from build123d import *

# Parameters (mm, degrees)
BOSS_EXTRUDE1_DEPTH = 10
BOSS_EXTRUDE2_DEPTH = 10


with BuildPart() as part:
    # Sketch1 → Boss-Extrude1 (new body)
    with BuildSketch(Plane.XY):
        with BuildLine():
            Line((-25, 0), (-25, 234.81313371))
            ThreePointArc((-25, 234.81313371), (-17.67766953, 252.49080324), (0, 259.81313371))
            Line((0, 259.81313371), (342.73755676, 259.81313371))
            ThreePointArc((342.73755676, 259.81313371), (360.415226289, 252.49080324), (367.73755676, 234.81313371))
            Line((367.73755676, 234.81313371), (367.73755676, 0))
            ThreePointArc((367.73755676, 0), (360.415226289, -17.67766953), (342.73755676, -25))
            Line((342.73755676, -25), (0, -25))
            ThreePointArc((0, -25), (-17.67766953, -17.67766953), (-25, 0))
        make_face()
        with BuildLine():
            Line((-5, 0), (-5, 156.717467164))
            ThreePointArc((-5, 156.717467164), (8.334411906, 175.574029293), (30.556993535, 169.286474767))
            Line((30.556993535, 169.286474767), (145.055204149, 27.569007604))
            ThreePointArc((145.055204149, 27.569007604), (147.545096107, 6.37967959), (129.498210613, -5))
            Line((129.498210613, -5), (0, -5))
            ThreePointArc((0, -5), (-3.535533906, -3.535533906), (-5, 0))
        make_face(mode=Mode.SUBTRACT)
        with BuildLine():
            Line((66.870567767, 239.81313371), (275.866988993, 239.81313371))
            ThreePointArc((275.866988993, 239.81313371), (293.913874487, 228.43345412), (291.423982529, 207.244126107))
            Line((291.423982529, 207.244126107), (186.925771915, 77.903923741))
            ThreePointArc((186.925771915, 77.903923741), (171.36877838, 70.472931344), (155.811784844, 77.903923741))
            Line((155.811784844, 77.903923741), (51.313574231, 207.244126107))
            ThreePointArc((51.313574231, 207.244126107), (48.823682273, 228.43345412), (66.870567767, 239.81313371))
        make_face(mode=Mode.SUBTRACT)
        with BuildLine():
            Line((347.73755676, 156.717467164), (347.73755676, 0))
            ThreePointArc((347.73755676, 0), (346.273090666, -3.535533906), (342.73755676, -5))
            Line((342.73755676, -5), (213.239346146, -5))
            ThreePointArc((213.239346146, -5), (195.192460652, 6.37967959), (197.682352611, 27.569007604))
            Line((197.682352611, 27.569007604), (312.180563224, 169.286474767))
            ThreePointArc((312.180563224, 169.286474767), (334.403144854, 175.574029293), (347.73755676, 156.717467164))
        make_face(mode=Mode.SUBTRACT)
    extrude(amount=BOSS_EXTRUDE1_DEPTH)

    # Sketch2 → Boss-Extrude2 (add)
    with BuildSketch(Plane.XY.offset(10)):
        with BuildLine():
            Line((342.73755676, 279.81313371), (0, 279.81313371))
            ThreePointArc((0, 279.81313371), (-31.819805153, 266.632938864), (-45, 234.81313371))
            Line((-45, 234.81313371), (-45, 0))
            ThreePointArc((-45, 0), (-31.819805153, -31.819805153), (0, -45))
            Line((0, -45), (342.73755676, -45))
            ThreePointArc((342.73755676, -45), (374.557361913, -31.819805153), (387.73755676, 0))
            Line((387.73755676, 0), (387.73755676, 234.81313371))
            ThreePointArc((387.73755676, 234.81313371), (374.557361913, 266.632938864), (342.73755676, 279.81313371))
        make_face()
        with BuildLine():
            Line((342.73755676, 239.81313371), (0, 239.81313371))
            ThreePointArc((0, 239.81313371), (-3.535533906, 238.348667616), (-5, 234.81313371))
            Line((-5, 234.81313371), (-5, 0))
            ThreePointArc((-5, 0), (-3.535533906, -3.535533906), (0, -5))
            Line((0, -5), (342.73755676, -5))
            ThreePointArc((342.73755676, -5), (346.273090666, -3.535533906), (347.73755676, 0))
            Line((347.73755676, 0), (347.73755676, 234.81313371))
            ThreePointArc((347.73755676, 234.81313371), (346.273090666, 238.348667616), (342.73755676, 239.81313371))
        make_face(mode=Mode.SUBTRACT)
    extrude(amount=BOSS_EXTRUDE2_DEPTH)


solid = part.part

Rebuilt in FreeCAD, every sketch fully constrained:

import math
import FreeCAD as App
import Part
import Sketcher
from FreeCAD import Vector

doc = App.newDocument("Part")
body = doc.addObject("PartDesign::Body", "Body")

# Sketch on XY plane
sketch1 = doc.addObject("Sketcher::SketchObject", "Sketch")
body.addObject(sketch1)
sketch1.AttachmentSupport = (doc.XY_Plane, [""])
sketch1.MapMode = "FlatFace"
sketch1.addGeometry(Part.LineSegment(Vector(-25, 234.813134, 0), Vector(-25, 0, 0)), False)
sketch1.addGeometry(Part.ArcOfCircle(Part.Circle(Vector(0, 0, 0), Vector(0, 0, 1), 25), math.radians(180), math.radians(270)), False)
sketch1.addGeometry(Part.LineSegment(Vector(0, -25, 0), Vector(342.737557, -25, 0)), False)
sketch1.addGeometry(Part.ArcOfCircle(Part.Circle(Vector(342.737557, 0, 0), Vector(0, 0, 1), 25), math.radians(-90), math.radians(0)), False)
sketch1.addGeometry(Part.LineSegment(Vector(367.737557, 0, 0), Vector(367.737557, 234.813134, 0)), False)
sketch1.addGeometry(Part.ArcOfCircle(Part.Circle(Vector(342.737557, 234.813134, 0), Vector(0, 0, 1), 25), math.radians(0), math.radians(90)), False)
sketch1.addGeometry(Part.LineSegment(Vector(342.737557, 259.813134, 0), Vector(0, 259.813134, 0)), False)
sketch1.addGeometry(Part.ArcOfCircle(Part.Circle(Vector(0, 234.813134, 0), Vector(0, 0, 1), 25), math.radians(90), math.radians(180)), False)
sketch1.addGeometry(Part.LineSegment(Vector(347.737557, 156.717467, 0), Vector(347.737557, 0, 0)), False)
sketch1.addGeometry(Part.ArcOfCircle(Part.Circle(Vector(342.737557, 0, 0), Vector(0, 0, 1), 5), math.radians(-90), math.radians(0)), False)
sketch1.addGeometry(Part.LineSegment(Vector(342.737557, -5, 0), Vector(213.239346, -5, 0)), False)
sketch1.addGeometry(Part.ArcOfCircle(Part.Circle(Vector(213.239346, 15, 0), Vector(0, 0, 1), 20), math.radians(141.064113), math.radians(270)), False)
sketch1.addGeometry(Part.LineSegment(Vector(197.682353, 27.569008, 0), Vector(312.180563, 169.286475, 0)), False)
sketch1.addGeometry(Part.ArcOfCircle(Part.Circle(Vector(327.737557, 156.717467, 0), Vector(0, 0, 1), 20), math.radians(0), math.radians(141.064113)), False)
sketch1.addGeometry(Part.LineSegment(Vector(-5, 0, 0), Vector(-5, 156.717467, 0)), False)
sketch1.addGeometry(Part.ArcOfCircle(Part.Circle(Vector(15, 156.717467, 0), Vector(0, 0, 1), 20), math.radians(38.935887), math.radians(180)), False)
sketch1.addGeometry(Part.LineSegment(Vector(30.556994, 169.286475, 0), Vector(145.055204, 27.569008, 0)), False)
sketch1.addGeometry(Part.ArcOfCircle(Part.Circle(Vector(129.498211, 15, 0), Vector(0, 0, 1), 20), math.radians(-90), math.radians(38.935887)), False)
sketch1.addGeometry(Part.LineSegment(Vector(129.498211, -5, 0), Vector(0, -5, 0)), False)
sketch1.addGeometry(Part.ArcOfCircle(Part.Circle(Vector(0, 0, 0), Vector(0, 0, 1), 5), math.radians(180), math.radians(270)), False)
sketch1.addGeometry(Part.LineSegment(Vector(66.870568, 239.813134, 0), Vector(275.866989, 239.813134, 0)), False)
sketch1.addGeometry(Part.ArcOfCircle(Part.Circle(Vector(275.866989, 219.813134, 0), Vector(0, 0, 1), 20), math.radians(-38.935887), math.radians(90)), False)
sketch1.addGeometry(Part.LineSegment(Vector(291.423983, 207.244126, 0), Vector(186.925772, 77.903924, 0)), False)
sketch1.addGeometry(Part.ArcOfCircle(Part.Circle(Vector(171.368778, 90.472931, 0), Vector(0, 0, 1), 20), math.radians(-141.064113), math.radians(-38.935887)), False)
sketch1.addGeometry(Part.LineSegment(Vector(155.811785, 77.903924, 0), Vector(51.313574, 207.244126, 0)), False)
sketch1.addGeometry(Part.ArcOfCircle(Part.Circle(Vector(66.870568, 219.813134, 0), Vector(0, 0, 1), 20), math.radians(90), math.radians(218.935887)), False)
sketch1.addConstraint(Sketcher.Constraint("Tangent", 0, 2, 1, 1))
sketch1.addConstraint(Sketcher.Constraint("Tangent", 1, 2, 2, 1))
sketch1.addConstraint(Sketcher.Constraint("Tangent", 2, 2, 3, 1))
sketch1.addConstraint(Sketcher.Constraint("Tangent", 3, 2, 4, 1))
sketch1.addConstraint(Sketcher.Constraint("Tangent", 4, 2, 5, 1))
sketch1.addConstraint(Sketcher.Constraint("Tangent", 5, 2, 6, 1))
sketch1.addConstraint(Sketcher.Constraint("Tangent", 6, 2, 7, 1))
sketch1.addConstraint(Sketcher.Constraint("Tangent", 7, 2, 0, 1))
sketch1.addConstraint(Sketcher.Constraint("Tangent", 8, 2, 9, 2))
sketch1.addConstraint(Sketcher.Constraint("Tangent", 9, 1, 10, 1))
sketch1.addConstraint(Sketcher.Constraint("Tangent", 10, 2, 11, 2))
sketch1.addConstraint(Sketcher.Constraint("Tangent", 11, 1, 12, 1))
sketch1.addConstraint(Sketcher.Constraint("Tangent", 12, 2, 13, 2))
sketch1.addConstraint(Sketcher.Constraint("Tangent", 13, 1, 8, 1))
sketch1.addConstraint(Sketcher.Constraint("Tangent", 14, 2, 15, 2))
sketch1.addConstraint(Sketcher.Constraint("Tangent", 15, 1, 16, 1))
sketch1.addConstraint(Sketcher.Constraint("Tangent", 16, 2, 17, 2))
sketch1.addConstraint(Sketcher.Constraint("Tangent", 17, 1, 18, 1))
sketch1.addConstraint(Sketcher.Constraint("Tangent", 18, 2, 19, 2))
sketch1.addConstraint(Sketcher.Constraint("Tangent", 19, 1, 14, 1))
sketch1.addConstraint(Sketcher.Constraint("Tangent", 20, 2, 21, 2))
sketch1.addConstraint(Sketcher.Constraint("Tangent", 21, 1, 22, 1))
sketch1.addConstraint(Sketcher.Constraint("Tangent", 22, 2, 23, 2))
sketch1.addConstraint(Sketcher.Constraint("Tangent", 23, 1, 24, 1))
sketch1.addConstraint(Sketcher.Constraint("Tangent", 24, 2, 25, 2))
sketch1.addConstraint(Sketcher.Constraint("Tangent", 25, 1, 20, 1))
sketch1.addConstraint(Sketcher.Constraint("Vertical", 0))
sketch1.addConstraint(Sketcher.Constraint("Horizontal", 2))
sketch1.addConstraint(Sketcher.Constraint("Vertical", 4))
sketch1.addConstraint(Sketcher.Constraint("Horizontal", 6))
sketch1.addConstraint(Sketcher.Constraint("Vertical", 8))
sketch1.addConstraint(Sketcher.Constraint("Horizontal", 10))
sketch1.addConstraint(Sketcher.Constraint("Vertical", 14))
sketch1.addConstraint(Sketcher.Constraint("Horizontal", 18))
sketch1.addConstraint(Sketcher.Constraint("Horizontal", 20))
sketch1.addConstraint(Sketcher.Constraint("Coincident", 1, 3, -1, 1))
sketch1.addConstraint(Sketcher.Constraint("Coincident", 19, 3, -1, 1))
sketch1.addConstraint(Sketcher.Constraint("Coincident", 9, 3, 3, 3))
sketch1.addConstraint(Sketcher.Constraint("Equal", 1, 3))
sketch1.addConstraint(Sketcher.Constraint("Equal", 3, 5))
sketch1.addConstraint(Sketcher.Constraint("Equal", 5, 7))
sketch1.addConstraint(Sketcher.Constraint("Equal", 11, 13))
sketch1.addConstraint(Sketcher.Constraint("Equal", 13, 15))
sketch1.addConstraint(Sketcher.Constraint("Equal", 15, 17))
sketch1.addConstraint(Sketcher.Constraint("Equal", 9, 19))
sketch1.addConstraint(Sketcher.Constraint("Equal", 17, 21))
sketch1.addConstraint(Sketcher.Constraint("Equal", 21, 23))
sketch1.addConstraint(Sketcher.Constraint("Equal", 23, 25))
sketch1.addConstraint(Sketcher.Constraint("Parallel", 12, 22))
sketch1.addConstraint(Sketcher.Constraint("Parallel", 16, 24))
sketch1.addConstraint(Sketcher.Constraint("Horizontal", 13, 3, 15, 3))
sketch1.addConstraint(Sketcher.Constraint("Horizontal", 12, 2, 15, 1))
sketch1.addConstraint(Sketcher.Constraint("Radius", 1, 25.0))
sketch1.addConstraint(Sketcher.Constraint("Radius", 9, 5.0))
sketch1.addConstraint(Sketcher.Constraint("Radius", 11, 20.0))
sketch1.addConstraint(Sketcher.Constraint("DistanceY", 21, 3, 5, 3, 15.0))
sketch1.addConstraint(Sketcher.Constraint("DistanceX", 10, 2, 10, 1, 129.498211))
sketch1.addConstraint(Sketcher.Constraint("DistanceX", 20, 1, 20, 2, 208.996421))
sketch1.addConstraint(Sketcher.Constraint("Distance", 12, 182.19133))
sketch1.addConstraint(Sketcher.Constraint("DistanceX", 2, 1, 2, 2, 342.737557))
sketch1.addConstraint(Sketcher.Constraint("DistanceY", 0, 2, 0, 1, 234.813134))
sketch1.addConstraint(Sketcher.Constraint("DistanceX", -1, 1, 21, 3, 275.866989))
pad1 = doc.addObject("PartDesign::Pad", "Pad")
body.addObject(pad1)
pad1.Profile = sketch1
pad1.Length = 10

# Sketch on XY plane
sketch2 = doc.addObject("Sketcher::SketchObject", "Sketch001")
body.addObject(sketch2)
sketch2.AttachmentSupport = (doc.XY_Plane, [""])
sketch2.MapMode = "FlatFace"
sketch2.AttachmentOffset = App.Placement(Vector(0, 0, 10), App.Rotation())
sketch2.addGeometry(Part.LineSegment(Vector(342.737557, 279.813134, 0), Vector(0, 279.813134, 0)), False)
sketch2.addGeometry(Part.ArcOfCircle(Part.Circle(Vector(0, 234.813134, 0), Vector(0, 0, 1), 45), math.radians(90), math.radians(180)), False)
sketch2.addGeometry(Part.LineSegment(Vector(-45, 234.813134, 0), Vector(-45, 0, 0)), False)
sketch2.addGeometry(Part.ArcOfCircle(Part.Circle(Vector(0, 0, 0), Vector(0, 0, 1), 45), math.radians(-180), math.radians(-90)), False)
sketch2.addGeometry(Part.LineSegment(Vector(0, -45, 0), Vector(342.737557, -45, 0)), False)
sketch2.addGeometry(Part.ArcOfCircle(Part.Circle(Vector(342.737557, 0, 0), Vector(0, 0, 1), 45), math.radians(-90), math.radians(0)), False)
sketch2.addGeometry(Part.LineSegment(Vector(387.737557, 0, 0), Vector(387.737557, 234.813134, 0)), False)
sketch2.addGeometry(Part.ArcOfCircle(Part.Circle(Vector(342.737557, 234.813134, 0), Vector(0, 0, 1), 45), math.radians(0), math.radians(90)), False)
sketch2.addGeometry(Part.LineSegment(Vector(0, 239.813134, 0), Vector(342.737557, 239.813134, 0)), False)
sketch2.addGeometry(Part.ArcOfCircle(Part.Circle(Vector(342.737557, 234.813134, 0), Vector(0, 0, 1), 5), math.radians(0), math.radians(90)), False)
sketch2.addGeometry(Part.LineSegment(Vector(347.737557, 234.813134, 0), Vector(347.737557, 0, 0)), False)
sketch2.addGeometry(Part.ArcOfCircle(Part.Circle(Vector(342.737557, 0, 0), Vector(0, 0, 1), 5), math.radians(-90), math.radians(0)), False)
sketch2.addGeometry(Part.LineSegment(Vector(342.737557, -5, 0), Vector(0, -5, 0)), False)
sketch2.addGeometry(Part.ArcOfCircle(Part.Circle(Vector(0, 0, 0), Vector(0, 0, 1), 5), math.radians(180), math.radians(270)), False)
sketch2.addGeometry(Part.LineSegment(Vector(-5, 0, 0), Vector(-5, 234.813134, 0)), False)
sketch2.addGeometry(Part.ArcOfCircle(Part.Circle(Vector(0, 234.813134, 0), Vector(0, 0, 1), 5), math.radians(90), math.radians(180)), False)
sketch2.addConstraint(Sketcher.Constraint("Tangent", 0, 2, 1, 1))
sketch2.addConstraint(Sketcher.Constraint("Tangent", 1, 2, 2, 1))
sketch2.addConstraint(Sketcher.Constraint("Tangent", 2, 2, 3, 1))
sketch2.addConstraint(Sketcher.Constraint("Tangent", 3, 2, 4, 1))
sketch2.addConstraint(Sketcher.Constraint("Tangent", 4, 2, 5, 1))
sketch2.addConstraint(Sketcher.Constraint("Tangent", 5, 2, 6, 1))
sketch2.addConstraint(Sketcher.Constraint("Tangent", 6, 2, 7, 1))
sketch2.addConstraint(Sketcher.Constraint("Tangent", 7, 2, 0, 1))
sketch2.addConstraint(Sketcher.Constraint("Tangent", 8, 2, 9, 2))
sketch2.addConstraint(Sketcher.Constraint("Tangent", 9, 1, 10, 1))
sketch2.addConstraint(Sketcher.Constraint("Tangent", 10, 2, 11, 2))
sketch2.addConstraint(Sketcher.Constraint("Tangent", 11, 1, 12, 1))
sketch2.addConstraint(Sketcher.Constraint("Tangent", 12, 2, 13, 2))
sketch2.addConstraint(Sketcher.Constraint("Tangent", 13, 1, 14, 1))
sketch2.addConstraint(Sketcher.Constraint("Tangent", 14, 2, 15, 2))
sketch2.addConstraint(Sketcher.Constraint("Tangent", 15, 1, 8, 1))
sketch2.addConstraint(Sketcher.Constraint("Horizontal", 0))
sketch2.addConstraint(Sketcher.Constraint("Vertical", 2))
sketch2.addConstraint(Sketcher.Constraint("Horizontal", 4))
sketch2.addConstraint(Sketcher.Constraint("Vertical", 6))
sketch2.addConstraint(Sketcher.Constraint("Horizontal", 8))
sketch2.addConstraint(Sketcher.Constraint("Vertical", 10))
sketch2.addConstraint(Sketcher.Constraint("Horizontal", 12))
sketch2.addConstraint(Sketcher.Constraint("Vertical", 14))
sketch2.addConstraint(Sketcher.Constraint("Coincident", 3, 3, -1, 1))
sketch2.addConstraint(Sketcher.Constraint("Coincident", 13, 3, -1, 1))
sketch2.addConstraint(Sketcher.Constraint("Coincident", 9, 3, 7, 3))
sketch2.addConstraint(Sketcher.Constraint("Coincident", 11, 3, 5, 3))
sketch2.addConstraint(Sketcher.Constraint("Equal", 1, 3))
sketch2.addConstraint(Sketcher.Constraint("Equal", 3, 5))
sketch2.addConstraint(Sketcher.Constraint("Equal", 5, 7))
sketch2.addConstraint(Sketcher.Constraint("Equal", 13, 15))
sketch2.addConstraint(Sketcher.Constraint("Radius", 1, 45.0))
sketch2.addConstraint(Sketcher.Constraint("Radius", 9, 5.0))
sketch2.addConstraint(Sketcher.Constraint("DistanceX", 0, 2, 0, 1, 342.737557))
sketch2.addConstraint(Sketcher.Constraint("DistanceY", 2, 2, 2, 1, 234.813134))
pad2 = doc.addObject("PartDesign::Pad", "Pad001")
body.addObject(pad2)
pad2.Profile = sketch2
pad2.Length = 10

doc.recompute()
